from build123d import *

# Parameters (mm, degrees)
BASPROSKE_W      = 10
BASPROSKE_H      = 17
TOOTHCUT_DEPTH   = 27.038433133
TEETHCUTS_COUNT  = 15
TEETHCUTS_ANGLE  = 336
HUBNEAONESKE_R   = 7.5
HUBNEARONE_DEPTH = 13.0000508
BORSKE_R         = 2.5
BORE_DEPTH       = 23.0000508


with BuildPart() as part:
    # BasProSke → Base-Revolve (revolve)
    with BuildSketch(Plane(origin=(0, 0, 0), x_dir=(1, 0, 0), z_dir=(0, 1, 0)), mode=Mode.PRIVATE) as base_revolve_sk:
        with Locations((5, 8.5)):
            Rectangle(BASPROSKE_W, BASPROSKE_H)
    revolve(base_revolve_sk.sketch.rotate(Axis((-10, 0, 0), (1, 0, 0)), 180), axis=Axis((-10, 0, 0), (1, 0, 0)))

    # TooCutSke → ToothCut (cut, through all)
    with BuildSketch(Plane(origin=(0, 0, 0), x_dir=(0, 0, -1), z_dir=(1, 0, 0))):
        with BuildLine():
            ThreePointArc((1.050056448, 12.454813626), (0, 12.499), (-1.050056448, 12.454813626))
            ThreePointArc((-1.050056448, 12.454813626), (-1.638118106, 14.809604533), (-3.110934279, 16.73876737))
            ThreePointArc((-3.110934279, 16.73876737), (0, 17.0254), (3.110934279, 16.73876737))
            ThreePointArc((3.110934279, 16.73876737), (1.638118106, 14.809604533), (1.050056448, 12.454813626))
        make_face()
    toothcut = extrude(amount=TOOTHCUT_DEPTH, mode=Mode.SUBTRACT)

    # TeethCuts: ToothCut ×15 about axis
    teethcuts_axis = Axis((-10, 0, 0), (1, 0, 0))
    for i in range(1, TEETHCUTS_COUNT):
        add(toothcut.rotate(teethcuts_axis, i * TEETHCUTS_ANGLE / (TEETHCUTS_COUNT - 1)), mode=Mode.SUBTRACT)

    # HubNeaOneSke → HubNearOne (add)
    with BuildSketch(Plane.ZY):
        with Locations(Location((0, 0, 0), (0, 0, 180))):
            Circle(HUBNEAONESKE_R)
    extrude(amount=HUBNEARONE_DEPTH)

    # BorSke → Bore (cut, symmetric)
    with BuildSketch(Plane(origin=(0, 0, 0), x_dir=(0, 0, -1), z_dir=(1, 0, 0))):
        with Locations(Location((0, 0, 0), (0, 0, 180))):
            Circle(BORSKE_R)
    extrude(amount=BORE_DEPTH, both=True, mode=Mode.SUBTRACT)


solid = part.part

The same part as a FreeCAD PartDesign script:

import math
import FreeCAD as App
import Part
import Sketcher
from FreeCAD import Vector


def add_polygon(sketch, points):
    """Adds a closed chain of lines whose ends are joined by coincident constraints."""
    first, n = sketch.GeometryCount, len(points)
    for a, b in zip(points, points[1:] + points[:1]):
        sketch.addGeometry(Part.LineSegment(App.Vector(*a, 0), App.Vector(*b, 0)), False)
    for i in range(n):
        sketch.addConstraint(Sketcher.Constraint("Coincident", first + i, 2, first + (i + 1) % n, 1))

doc = App.newDocument("Part")
params = doc.addObject("Spreadsheet::Sheet", "Params")
for row, (alias, value) in enumerate([
    ("sketch1_width", "10 mm"),
    ("sketch1_height", "17 mm"),
    ("revolution_angle", "360 deg"),
    ("sketch2_radius", "6 mm"),
    ("sketch3_diameter", "15 mm"),
    ("pad1_length", "13.000051 mm"),
    ("sketch4_diameter", "5 mm"),
    ("pocket2_length", "46.000102 mm"),
], start=1):
    params.set(f"A{row}", alias)
    params.set(f"B{row}", "=" + value)
    params.setAlias(f"B{row}", alias)

body = doc.addObject("PartDesign::Body", "Body")

# Sketch on XZ plane
sketch1 = body.newObject("Sketcher::SketchObject", "Sketch")
sketch1.AttachmentSupport = (doc.getObject("XZ_Plane"), [""])
sketch1.MapMode = "FlatFace"
add_polygon(sketch1, [(0, -17), (0, 0), (10, 0), (10, -17)])  # lines 0-3
sketch1.addConstraint([
    Sketcher.Constraint("Vertical", 0),
    Sketcher.Constraint("Horizontal", 1),
    Sketcher.Constraint("Vertical", 2),
    Sketcher.Constraint("Horizontal", 3),
    Sketcher.Constraint("Coincident", 0, 2, -1, 1),
    Sketcher.Constraint("DistanceX", 1, 1, 1, 2, 10.0),
    Sketcher.Constraint("DistanceY", 0, 1, 0, 2, 17.0),
])
sketch1.setExpression("Constraints[9]", "Params.sketch1_width")
sketch1.setExpression("Constraints[10]", "Params.sketch1_height")
revolution = body.newObject("PartDesign::Revolution", "Revolution")
revolution.Profile = sketch1
revolution.ReferenceAxis = (sketch1, ["H_Axis"])
revolution.setExpression("Angle", "Params.revolution_angle")

# Sketch on YZ plane
sketch2 = body.newObject("Sketcher::SketchObject", "Sketch001")
sketch2.AttachmentSupport = (doc.getObject("YZ_Plane"), [""])
sketch2.MapMode = "FlatFace"
sketch2.addGeometry([
    Part.ArcOfCircle(Part.Circle(Vector(0, 0, 0), Vector(0, 0, 1), 12.499), math.radians(-4.81917), math.radians(4.81917)),
    Part.ArcOfCircle(Part.Circle(Vector(12.208521, -7.044999, 0), Vector(0, 0, 1), 6), math.radians(40.971042), math.radians(87.647418)),
    Part.ArcOfCircle(Part.Circle(Vector(0, 0, 0), Vector(0, 0, 1), 17.0254), math.radians(-10.528414), math.radians(10.528414)),
    Part.ArcOfCircle(Part.Circle(Vector(12.208521, 7.044999, 0), Vector(0, 0, 1), 6), math.radians(-87.647418), math.radians(-40.971042)),
], False)
sketch2.addConstraint([
    Sketcher.Constraint("Coincident", 0, 1, 1, 2),
    Sketcher.Constraint("Coincident", 1, 1, 2, 1),
    Sketcher.Constraint("Coincident", 2, 2, 3, 2),
    Sketcher.Constraint("Coincident", 3, 1, 0, 2),
    Sketcher.Constraint("Coincident", 0, 3, -1, 1),
    Sketcher.Constraint("Coincident", 2, 3, -1, 1),
    Sketcher.Constraint("Equal", 1, 3),
    Sketcher.Constraint("Symmetric", 1, 3, 3, 3, -1),
    Sketcher.Constraint("Radius", 1, 6.0),
    Sketcher.Constraint("Radius", 0, 12.499),
    Sketcher.Constraint("Radius", 2, 17.0254),
    Sketcher.Constraint("DistanceY", 1, 3, 3, 3, 14.089999),
    Sketcher.Constraint("DistanceX", -1, 1, 1, 3, 12.208521),
])
sketch2.setExpression("Constraints[8]", "Params.sketch2_radius")
pocket1 = body.newObject("PartDesign::Pocket", "Pocket")
pocket1.Profile = sketch2
pocket1.Type = "ThroughAll"
pocket1.Reversed = True
doc.recompute()

polarpattern = body.newObject("PartDesign::PolarPattern", "PolarPattern")
polarpattern.Originals = [pocket1]
polarpattern.Axis = (doc.getObject("X_Axis"), [""])
polarpattern.Angle = 360
polarpattern.Occurrences = 15
body.Tip = polarpattern

# Sketch on YZ plane
sketch3 = body.newObject("Sketcher::SketchObject", "Sketch002")
sketch3.AttachmentSupport = (doc.getObject("YZ_Plane"), [""])
sketch3.MapMode = "FlatFace"
sketch3.addGeometry(Part.Circle(Vector(0, 0, 0), Vector(0, 0, 1), 7.5), False)
sketch3.addConstraint([
    Sketcher.Constraint("Coincident", 0, 3, -1, 1),
    Sketcher.Constraint("Diameter", 0, 15.0),
])
sketch3.setExpression("Constraints[1]", "Params.sketch3_diameter")
pad1 = body.newObject("PartDesign::Pad", "Pad")
pad1.Profile = sketch3
pad1.setExpression("Length", "Params.pad1_length")
pad1.Reversed = True

# Sketch on YZ plane
sketch4 = body.newObject("Sketcher::SketchObject", "Sketch003")
sketch4.AttachmentSupport = (doc.getObject("YZ_Plane"), [""])
sketch4.MapMode = "FlatFace"
sketch4.addGeometry(Part.Circle(Vector(0, 0, 0), Vector(0, 0, 1), 2.5), False)
sketch4.addConstraint([
    Sketcher.Constraint("Coincident", 0, 3, -1, 1),
    Sketcher.Constraint("Diameter", 0, 5.0),
])
sketch4.setExpression("Constraints[1]", "Params.sketch4_diameter")
pocket2 = body.newObject("PartDesign::Pocket", "Pocket001")
pocket2.Profile = sketch4
pocket2.setExpression("Length", "Params.pocket2_length")
pocket2.Midplane = True

doc.recompute()
